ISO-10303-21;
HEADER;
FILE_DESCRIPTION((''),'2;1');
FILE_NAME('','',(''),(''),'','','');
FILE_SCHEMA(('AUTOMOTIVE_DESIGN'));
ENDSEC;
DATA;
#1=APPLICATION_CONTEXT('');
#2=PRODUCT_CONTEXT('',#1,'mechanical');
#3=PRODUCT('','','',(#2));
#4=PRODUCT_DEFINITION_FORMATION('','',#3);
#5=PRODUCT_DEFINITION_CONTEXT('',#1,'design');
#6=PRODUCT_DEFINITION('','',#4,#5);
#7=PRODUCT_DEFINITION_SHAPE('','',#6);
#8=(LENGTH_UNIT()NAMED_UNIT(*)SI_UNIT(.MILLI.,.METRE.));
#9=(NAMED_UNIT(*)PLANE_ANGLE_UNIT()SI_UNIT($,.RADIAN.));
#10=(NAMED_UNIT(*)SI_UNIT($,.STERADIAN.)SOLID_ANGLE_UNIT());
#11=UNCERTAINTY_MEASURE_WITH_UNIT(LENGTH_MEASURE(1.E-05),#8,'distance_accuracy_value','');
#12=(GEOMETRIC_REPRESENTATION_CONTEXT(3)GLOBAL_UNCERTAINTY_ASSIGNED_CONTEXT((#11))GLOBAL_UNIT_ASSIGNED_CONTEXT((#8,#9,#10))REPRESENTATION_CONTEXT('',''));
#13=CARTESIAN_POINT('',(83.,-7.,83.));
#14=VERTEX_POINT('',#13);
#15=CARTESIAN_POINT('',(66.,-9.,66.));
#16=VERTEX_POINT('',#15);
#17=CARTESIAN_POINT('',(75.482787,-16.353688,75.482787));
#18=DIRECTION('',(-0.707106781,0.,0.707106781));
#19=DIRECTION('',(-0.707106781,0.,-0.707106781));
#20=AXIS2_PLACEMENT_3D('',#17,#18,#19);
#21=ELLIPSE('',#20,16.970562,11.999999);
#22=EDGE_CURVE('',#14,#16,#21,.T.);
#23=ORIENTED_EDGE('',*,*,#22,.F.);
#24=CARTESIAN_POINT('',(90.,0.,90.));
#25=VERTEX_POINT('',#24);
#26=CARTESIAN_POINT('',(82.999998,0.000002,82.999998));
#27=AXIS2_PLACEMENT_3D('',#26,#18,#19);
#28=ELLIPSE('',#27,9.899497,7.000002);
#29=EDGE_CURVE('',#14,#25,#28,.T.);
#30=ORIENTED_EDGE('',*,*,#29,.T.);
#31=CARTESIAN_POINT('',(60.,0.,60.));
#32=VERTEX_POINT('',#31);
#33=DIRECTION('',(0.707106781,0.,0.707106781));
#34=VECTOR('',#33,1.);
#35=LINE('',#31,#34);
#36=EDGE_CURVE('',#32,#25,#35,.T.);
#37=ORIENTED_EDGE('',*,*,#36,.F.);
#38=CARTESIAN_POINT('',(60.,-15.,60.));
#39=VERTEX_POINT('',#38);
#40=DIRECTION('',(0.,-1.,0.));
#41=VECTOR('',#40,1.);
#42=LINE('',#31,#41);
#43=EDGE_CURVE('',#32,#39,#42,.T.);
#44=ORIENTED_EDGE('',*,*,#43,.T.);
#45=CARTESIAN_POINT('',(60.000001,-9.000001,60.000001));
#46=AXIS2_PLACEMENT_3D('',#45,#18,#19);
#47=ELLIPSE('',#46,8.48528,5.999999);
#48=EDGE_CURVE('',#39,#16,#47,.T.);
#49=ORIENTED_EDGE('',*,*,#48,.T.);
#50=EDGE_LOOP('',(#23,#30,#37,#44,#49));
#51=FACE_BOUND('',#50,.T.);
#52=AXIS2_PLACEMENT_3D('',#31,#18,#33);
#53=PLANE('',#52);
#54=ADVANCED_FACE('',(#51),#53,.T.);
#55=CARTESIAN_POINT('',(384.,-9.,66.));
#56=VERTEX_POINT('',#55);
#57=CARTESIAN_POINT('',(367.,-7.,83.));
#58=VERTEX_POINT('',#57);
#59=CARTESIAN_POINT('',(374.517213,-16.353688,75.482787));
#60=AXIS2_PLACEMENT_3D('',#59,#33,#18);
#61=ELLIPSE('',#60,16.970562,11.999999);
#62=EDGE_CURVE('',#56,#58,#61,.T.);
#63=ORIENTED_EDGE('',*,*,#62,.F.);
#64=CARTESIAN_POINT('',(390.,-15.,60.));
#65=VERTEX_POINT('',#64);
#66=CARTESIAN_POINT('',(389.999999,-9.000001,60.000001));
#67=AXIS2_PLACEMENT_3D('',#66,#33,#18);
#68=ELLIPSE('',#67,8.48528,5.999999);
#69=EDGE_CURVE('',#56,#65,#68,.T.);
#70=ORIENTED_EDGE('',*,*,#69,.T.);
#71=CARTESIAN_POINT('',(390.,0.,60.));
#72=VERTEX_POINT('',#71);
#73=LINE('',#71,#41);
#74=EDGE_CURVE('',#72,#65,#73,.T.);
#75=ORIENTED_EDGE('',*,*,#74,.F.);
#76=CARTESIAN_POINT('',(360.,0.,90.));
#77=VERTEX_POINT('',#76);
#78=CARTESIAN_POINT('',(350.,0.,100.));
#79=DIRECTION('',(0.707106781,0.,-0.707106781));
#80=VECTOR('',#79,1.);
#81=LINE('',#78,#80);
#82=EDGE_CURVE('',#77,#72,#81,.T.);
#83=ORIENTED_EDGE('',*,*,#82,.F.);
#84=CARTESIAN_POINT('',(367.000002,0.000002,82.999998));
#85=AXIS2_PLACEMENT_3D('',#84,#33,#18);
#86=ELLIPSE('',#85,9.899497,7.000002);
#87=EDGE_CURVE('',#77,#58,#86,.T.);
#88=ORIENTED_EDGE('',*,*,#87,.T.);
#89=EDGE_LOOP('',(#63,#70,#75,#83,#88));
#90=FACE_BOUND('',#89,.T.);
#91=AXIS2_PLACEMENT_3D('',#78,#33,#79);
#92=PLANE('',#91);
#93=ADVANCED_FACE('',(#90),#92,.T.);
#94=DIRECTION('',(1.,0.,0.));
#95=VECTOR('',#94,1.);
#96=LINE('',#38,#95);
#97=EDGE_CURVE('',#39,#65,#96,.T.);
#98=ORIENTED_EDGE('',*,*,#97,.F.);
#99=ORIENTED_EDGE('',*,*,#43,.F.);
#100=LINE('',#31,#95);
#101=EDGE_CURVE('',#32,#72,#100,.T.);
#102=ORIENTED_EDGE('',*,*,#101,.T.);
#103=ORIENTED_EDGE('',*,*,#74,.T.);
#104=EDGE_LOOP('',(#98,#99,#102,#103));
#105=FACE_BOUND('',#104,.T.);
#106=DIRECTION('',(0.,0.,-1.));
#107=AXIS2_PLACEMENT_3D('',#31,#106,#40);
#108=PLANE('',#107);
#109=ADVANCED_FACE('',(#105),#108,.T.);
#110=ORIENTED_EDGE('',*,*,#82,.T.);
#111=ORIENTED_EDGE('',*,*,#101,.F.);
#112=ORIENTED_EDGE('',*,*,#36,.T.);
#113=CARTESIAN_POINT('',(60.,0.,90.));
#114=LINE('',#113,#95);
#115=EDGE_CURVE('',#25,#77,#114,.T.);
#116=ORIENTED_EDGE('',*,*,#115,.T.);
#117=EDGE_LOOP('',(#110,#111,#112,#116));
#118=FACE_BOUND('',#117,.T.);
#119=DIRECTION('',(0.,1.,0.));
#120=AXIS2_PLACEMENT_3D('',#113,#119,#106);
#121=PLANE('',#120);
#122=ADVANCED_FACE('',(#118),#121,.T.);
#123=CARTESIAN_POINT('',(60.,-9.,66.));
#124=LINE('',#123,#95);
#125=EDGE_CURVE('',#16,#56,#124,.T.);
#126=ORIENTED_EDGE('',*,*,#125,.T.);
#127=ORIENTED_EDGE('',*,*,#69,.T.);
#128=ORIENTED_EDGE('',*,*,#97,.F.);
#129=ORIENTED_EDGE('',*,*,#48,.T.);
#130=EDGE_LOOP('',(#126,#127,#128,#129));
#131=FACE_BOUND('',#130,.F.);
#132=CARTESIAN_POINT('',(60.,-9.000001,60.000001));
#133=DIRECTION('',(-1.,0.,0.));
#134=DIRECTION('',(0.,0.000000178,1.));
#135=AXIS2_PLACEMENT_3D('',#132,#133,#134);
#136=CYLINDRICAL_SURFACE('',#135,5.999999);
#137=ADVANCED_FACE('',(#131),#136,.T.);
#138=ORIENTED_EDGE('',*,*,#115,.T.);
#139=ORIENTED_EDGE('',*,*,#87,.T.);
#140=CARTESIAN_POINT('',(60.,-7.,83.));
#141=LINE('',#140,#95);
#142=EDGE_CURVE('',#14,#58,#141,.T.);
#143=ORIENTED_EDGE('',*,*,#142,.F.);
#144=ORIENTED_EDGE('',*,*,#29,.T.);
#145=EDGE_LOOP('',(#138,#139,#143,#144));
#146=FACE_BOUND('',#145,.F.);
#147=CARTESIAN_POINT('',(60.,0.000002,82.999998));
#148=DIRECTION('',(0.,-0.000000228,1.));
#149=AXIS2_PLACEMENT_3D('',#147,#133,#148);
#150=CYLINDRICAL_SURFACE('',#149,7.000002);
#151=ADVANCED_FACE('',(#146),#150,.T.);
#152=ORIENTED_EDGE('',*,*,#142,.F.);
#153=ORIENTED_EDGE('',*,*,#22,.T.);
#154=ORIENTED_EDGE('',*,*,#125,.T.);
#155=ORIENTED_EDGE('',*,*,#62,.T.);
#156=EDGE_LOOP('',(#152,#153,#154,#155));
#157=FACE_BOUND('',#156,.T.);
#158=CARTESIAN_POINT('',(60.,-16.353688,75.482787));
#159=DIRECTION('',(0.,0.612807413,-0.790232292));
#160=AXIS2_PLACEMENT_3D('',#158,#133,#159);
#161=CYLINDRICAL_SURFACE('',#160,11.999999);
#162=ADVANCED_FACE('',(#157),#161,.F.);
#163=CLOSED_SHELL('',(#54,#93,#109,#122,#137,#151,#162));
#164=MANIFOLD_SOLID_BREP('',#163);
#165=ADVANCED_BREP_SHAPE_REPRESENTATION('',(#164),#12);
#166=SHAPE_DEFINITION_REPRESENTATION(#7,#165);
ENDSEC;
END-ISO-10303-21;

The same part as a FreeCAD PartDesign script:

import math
import FreeCAD as App
import Part
import Sketcher
from FreeCAD import Vector
Q = App.Units.Quantity

doc = App.newDocument("Part")
body = doc.addObject("PartDesign::Body", "Body")

# Sketch on XZ plane
sketch1 = body.newObject("Sketcher::SketchObject", "Sketch")
sketch1.AttachmentSupport = (doc.getObject("XZ_Plane"), [""])
sketch1.MapMode = "FlatFace"
sketch1.addGeometry([
    Part.LineSegment(Vector(350, 100, 0), Vector(390, 60, 0)),
    Part.LineSegment(Vector(390, 60, 0), Vector(390, 100, 0)),
    Part.LineSegment(Vector(390, 100, 0), Vector(350, 100, 0)),
], False)
sketch1.addConstraint([
    Sketcher.Constraint("Coincident", 0, 2, 1, 1),
    Sketcher.Constraint("Coincident", 1, 2, 2, 1),
    Sketcher.Constraint("Coincident", 2, 2, 0, 1),
    Sketcher.Constraint("Vertical", 1),
    Sketcher.Constraint("Horizontal", 2),
    Sketcher.Constraint("Equal", 2, 1),
    Sketcher.Constraint("DistanceX", 2, 2, 2, 1, Q("40 mm")),
    Sketcher.Constraint("DistanceX", -1, 1, 0, 2, Q("390 mm")),
    Sketcher.Constraint("DistanceY", -1, 1, 0, 2, Q("60 mm")),
])
pad1 = body.newObject("PartDesign::Pad", "Pad")
pad1.Profile = sketch1
pad1.Length = 40
body2 = doc.addObject("PartDesign::Body", "Body001")

# Sketch on XZ plane
sketch2 = body2.newObject("Sketcher::SketchObject", "Sketch001")
sketch2.AttachmentSupport = (doc.getObject("XZ_Plane001"), [""])
sketch2.MapMode = "FlatFace"
sketch2.addGeometry([
    Part.LineSegment(Vector(60, 60, 0), Vector(100, 100, 0)),
    Part.LineSegment(Vector(100, 100, 0), Vector(60, 100, 0)),
    Part.LineSegment(Vector(60, 100, 0), Vector(60, 60, 0)),
], False)
sketch2.addConstraint([
    Sketcher.Constraint("Coincident", 0, 2, 1, 1),
    Sketcher.Constraint("Coincident", 1, 2, 2, 1),
    Sketcher.Constraint("Coincident", 2, 2, 0, 1),
    Sketcher.Constraint("Horizontal", 1),
    Sketcher.Constraint("Vertical", 2),
    Sketcher.Constraint("Equal", 1, 2),
    Sketcher.Constraint("DistanceX", 1, 2, 1, 1, Q("40 mm")),
    Sketcher.Constraint("DistanceX", -1, 1, 0, 2, Q("100 mm")),
    Sketcher.Constraint("DistanceY", -1, 1, 0, 2, Q("100 mm")),
])
pad2 = body2.newObject("PartDesign::Pad", "Pad001")
pad2.Profile = sketch2
pad2.Length = 40
body3 = doc.addObject("PartDesign::Body", "Body002")

# Sketch on YZ plane
sketch3 = body3.newObject("Sketcher::SketchObject", "Sketch002")
sketch3.AttachmentSupport = (doc.getObject("YZ_Plane002"), [""])
sketch3.MapMode = "FlatFace"
sketch3.AttachmentOffset = App.Placement(Vector(0, 0, 60), App.Rotation())
sketch3.addGeometry([
    Part.LineSegment(Vector(0, 60, 0), Vector(0, 90, 0)),  # 0
    Part.ArcOfCircle(Part.Circle(Vector(0, 83, 0), Vector(0, 0, 1), 7), math.radians(90), math.radians(180)),  # 1
    Part.ArcOfCircle(Part.Circle(Vector(-16, 75, 0), Vector(0, 0, 1), 12), math.radians(-52), math.radians(39)),  # 2
    Part.ArcOfCircle(Part.Circle(Vector(-9, 60, 0), Vector(0, 0, 1), 6), math.radians(90), math.radians(180)),  # 3
    Part.LineSegment(Vector(-15, 60, 0), Vector(0, 60, 0)),  # 4
], False)
sketch3.addConstraint([
    Sketcher.Constraint("Coincident", 0, 2, 1, 1),
    Sketcher.Constraint("Coincident", 1, 2, 2, 2),
    Sketcher.Constraint("Coincident", 2, 1, 3, 1),
    Sketcher.Constraint("Coincident", 3, 2, 4, 1),
    Sketcher.Constraint("Coincident", 4, 2, 0, 1),
    Sketcher.Constraint("Vertical", 0),
    Sketcher.Constraint("Horizontal", 4),
    Sketcher.Constraint("PointOnObject", 1, 3, -2),
    Sketcher.Constraint("PointOnObject", 0, 2, -2),
    Sketcher.Constraint("Vertical", 3, 3, 2, 1),
    Sketcher.Constraint("Radius", 1, Q("7.000002 mm")),
    Sketcher.Constraint("Radius", 2, Q("11.999999 mm")),
    Sketcher.Constraint("Radius", 3, Q("5.999999 mm")),
    Sketcher.Constraint("DistanceX", 4, 1, 4, 2, Q("15 mm")),
    Sketcher.Constraint("DistanceY", 0, 1, 0, 2, Q("30 mm")),
    Sketcher.Constraint("DistanceY", -1, 1, 1, 3, Q("82.999998 mm")),
    Sketcher.Constraint("DistanceY", -1, 1, 3, 3, Q("60.000001 mm")),
    Sketcher.Constraint("DistanceY", -1, 1, 1, 2, Q("83 mm")),
])
pad3 = body3.newObject("PartDesign::Pad", "Pad002")
pad3.Profile = sketch3
pad3.Length = 330
doc.recompute()

boolean = body3.newObject("PartDesign::Boolean", "Boolean")
boolean.Type = "Cut"
boolean.addObjects([body2])
doc.recompute()

boolean2 = body3.newObject("PartDesign::Boolean", "Boolean001")
boolean2.Type = "Cut"
boolean2.addObjects([body])

doc.recompute()
